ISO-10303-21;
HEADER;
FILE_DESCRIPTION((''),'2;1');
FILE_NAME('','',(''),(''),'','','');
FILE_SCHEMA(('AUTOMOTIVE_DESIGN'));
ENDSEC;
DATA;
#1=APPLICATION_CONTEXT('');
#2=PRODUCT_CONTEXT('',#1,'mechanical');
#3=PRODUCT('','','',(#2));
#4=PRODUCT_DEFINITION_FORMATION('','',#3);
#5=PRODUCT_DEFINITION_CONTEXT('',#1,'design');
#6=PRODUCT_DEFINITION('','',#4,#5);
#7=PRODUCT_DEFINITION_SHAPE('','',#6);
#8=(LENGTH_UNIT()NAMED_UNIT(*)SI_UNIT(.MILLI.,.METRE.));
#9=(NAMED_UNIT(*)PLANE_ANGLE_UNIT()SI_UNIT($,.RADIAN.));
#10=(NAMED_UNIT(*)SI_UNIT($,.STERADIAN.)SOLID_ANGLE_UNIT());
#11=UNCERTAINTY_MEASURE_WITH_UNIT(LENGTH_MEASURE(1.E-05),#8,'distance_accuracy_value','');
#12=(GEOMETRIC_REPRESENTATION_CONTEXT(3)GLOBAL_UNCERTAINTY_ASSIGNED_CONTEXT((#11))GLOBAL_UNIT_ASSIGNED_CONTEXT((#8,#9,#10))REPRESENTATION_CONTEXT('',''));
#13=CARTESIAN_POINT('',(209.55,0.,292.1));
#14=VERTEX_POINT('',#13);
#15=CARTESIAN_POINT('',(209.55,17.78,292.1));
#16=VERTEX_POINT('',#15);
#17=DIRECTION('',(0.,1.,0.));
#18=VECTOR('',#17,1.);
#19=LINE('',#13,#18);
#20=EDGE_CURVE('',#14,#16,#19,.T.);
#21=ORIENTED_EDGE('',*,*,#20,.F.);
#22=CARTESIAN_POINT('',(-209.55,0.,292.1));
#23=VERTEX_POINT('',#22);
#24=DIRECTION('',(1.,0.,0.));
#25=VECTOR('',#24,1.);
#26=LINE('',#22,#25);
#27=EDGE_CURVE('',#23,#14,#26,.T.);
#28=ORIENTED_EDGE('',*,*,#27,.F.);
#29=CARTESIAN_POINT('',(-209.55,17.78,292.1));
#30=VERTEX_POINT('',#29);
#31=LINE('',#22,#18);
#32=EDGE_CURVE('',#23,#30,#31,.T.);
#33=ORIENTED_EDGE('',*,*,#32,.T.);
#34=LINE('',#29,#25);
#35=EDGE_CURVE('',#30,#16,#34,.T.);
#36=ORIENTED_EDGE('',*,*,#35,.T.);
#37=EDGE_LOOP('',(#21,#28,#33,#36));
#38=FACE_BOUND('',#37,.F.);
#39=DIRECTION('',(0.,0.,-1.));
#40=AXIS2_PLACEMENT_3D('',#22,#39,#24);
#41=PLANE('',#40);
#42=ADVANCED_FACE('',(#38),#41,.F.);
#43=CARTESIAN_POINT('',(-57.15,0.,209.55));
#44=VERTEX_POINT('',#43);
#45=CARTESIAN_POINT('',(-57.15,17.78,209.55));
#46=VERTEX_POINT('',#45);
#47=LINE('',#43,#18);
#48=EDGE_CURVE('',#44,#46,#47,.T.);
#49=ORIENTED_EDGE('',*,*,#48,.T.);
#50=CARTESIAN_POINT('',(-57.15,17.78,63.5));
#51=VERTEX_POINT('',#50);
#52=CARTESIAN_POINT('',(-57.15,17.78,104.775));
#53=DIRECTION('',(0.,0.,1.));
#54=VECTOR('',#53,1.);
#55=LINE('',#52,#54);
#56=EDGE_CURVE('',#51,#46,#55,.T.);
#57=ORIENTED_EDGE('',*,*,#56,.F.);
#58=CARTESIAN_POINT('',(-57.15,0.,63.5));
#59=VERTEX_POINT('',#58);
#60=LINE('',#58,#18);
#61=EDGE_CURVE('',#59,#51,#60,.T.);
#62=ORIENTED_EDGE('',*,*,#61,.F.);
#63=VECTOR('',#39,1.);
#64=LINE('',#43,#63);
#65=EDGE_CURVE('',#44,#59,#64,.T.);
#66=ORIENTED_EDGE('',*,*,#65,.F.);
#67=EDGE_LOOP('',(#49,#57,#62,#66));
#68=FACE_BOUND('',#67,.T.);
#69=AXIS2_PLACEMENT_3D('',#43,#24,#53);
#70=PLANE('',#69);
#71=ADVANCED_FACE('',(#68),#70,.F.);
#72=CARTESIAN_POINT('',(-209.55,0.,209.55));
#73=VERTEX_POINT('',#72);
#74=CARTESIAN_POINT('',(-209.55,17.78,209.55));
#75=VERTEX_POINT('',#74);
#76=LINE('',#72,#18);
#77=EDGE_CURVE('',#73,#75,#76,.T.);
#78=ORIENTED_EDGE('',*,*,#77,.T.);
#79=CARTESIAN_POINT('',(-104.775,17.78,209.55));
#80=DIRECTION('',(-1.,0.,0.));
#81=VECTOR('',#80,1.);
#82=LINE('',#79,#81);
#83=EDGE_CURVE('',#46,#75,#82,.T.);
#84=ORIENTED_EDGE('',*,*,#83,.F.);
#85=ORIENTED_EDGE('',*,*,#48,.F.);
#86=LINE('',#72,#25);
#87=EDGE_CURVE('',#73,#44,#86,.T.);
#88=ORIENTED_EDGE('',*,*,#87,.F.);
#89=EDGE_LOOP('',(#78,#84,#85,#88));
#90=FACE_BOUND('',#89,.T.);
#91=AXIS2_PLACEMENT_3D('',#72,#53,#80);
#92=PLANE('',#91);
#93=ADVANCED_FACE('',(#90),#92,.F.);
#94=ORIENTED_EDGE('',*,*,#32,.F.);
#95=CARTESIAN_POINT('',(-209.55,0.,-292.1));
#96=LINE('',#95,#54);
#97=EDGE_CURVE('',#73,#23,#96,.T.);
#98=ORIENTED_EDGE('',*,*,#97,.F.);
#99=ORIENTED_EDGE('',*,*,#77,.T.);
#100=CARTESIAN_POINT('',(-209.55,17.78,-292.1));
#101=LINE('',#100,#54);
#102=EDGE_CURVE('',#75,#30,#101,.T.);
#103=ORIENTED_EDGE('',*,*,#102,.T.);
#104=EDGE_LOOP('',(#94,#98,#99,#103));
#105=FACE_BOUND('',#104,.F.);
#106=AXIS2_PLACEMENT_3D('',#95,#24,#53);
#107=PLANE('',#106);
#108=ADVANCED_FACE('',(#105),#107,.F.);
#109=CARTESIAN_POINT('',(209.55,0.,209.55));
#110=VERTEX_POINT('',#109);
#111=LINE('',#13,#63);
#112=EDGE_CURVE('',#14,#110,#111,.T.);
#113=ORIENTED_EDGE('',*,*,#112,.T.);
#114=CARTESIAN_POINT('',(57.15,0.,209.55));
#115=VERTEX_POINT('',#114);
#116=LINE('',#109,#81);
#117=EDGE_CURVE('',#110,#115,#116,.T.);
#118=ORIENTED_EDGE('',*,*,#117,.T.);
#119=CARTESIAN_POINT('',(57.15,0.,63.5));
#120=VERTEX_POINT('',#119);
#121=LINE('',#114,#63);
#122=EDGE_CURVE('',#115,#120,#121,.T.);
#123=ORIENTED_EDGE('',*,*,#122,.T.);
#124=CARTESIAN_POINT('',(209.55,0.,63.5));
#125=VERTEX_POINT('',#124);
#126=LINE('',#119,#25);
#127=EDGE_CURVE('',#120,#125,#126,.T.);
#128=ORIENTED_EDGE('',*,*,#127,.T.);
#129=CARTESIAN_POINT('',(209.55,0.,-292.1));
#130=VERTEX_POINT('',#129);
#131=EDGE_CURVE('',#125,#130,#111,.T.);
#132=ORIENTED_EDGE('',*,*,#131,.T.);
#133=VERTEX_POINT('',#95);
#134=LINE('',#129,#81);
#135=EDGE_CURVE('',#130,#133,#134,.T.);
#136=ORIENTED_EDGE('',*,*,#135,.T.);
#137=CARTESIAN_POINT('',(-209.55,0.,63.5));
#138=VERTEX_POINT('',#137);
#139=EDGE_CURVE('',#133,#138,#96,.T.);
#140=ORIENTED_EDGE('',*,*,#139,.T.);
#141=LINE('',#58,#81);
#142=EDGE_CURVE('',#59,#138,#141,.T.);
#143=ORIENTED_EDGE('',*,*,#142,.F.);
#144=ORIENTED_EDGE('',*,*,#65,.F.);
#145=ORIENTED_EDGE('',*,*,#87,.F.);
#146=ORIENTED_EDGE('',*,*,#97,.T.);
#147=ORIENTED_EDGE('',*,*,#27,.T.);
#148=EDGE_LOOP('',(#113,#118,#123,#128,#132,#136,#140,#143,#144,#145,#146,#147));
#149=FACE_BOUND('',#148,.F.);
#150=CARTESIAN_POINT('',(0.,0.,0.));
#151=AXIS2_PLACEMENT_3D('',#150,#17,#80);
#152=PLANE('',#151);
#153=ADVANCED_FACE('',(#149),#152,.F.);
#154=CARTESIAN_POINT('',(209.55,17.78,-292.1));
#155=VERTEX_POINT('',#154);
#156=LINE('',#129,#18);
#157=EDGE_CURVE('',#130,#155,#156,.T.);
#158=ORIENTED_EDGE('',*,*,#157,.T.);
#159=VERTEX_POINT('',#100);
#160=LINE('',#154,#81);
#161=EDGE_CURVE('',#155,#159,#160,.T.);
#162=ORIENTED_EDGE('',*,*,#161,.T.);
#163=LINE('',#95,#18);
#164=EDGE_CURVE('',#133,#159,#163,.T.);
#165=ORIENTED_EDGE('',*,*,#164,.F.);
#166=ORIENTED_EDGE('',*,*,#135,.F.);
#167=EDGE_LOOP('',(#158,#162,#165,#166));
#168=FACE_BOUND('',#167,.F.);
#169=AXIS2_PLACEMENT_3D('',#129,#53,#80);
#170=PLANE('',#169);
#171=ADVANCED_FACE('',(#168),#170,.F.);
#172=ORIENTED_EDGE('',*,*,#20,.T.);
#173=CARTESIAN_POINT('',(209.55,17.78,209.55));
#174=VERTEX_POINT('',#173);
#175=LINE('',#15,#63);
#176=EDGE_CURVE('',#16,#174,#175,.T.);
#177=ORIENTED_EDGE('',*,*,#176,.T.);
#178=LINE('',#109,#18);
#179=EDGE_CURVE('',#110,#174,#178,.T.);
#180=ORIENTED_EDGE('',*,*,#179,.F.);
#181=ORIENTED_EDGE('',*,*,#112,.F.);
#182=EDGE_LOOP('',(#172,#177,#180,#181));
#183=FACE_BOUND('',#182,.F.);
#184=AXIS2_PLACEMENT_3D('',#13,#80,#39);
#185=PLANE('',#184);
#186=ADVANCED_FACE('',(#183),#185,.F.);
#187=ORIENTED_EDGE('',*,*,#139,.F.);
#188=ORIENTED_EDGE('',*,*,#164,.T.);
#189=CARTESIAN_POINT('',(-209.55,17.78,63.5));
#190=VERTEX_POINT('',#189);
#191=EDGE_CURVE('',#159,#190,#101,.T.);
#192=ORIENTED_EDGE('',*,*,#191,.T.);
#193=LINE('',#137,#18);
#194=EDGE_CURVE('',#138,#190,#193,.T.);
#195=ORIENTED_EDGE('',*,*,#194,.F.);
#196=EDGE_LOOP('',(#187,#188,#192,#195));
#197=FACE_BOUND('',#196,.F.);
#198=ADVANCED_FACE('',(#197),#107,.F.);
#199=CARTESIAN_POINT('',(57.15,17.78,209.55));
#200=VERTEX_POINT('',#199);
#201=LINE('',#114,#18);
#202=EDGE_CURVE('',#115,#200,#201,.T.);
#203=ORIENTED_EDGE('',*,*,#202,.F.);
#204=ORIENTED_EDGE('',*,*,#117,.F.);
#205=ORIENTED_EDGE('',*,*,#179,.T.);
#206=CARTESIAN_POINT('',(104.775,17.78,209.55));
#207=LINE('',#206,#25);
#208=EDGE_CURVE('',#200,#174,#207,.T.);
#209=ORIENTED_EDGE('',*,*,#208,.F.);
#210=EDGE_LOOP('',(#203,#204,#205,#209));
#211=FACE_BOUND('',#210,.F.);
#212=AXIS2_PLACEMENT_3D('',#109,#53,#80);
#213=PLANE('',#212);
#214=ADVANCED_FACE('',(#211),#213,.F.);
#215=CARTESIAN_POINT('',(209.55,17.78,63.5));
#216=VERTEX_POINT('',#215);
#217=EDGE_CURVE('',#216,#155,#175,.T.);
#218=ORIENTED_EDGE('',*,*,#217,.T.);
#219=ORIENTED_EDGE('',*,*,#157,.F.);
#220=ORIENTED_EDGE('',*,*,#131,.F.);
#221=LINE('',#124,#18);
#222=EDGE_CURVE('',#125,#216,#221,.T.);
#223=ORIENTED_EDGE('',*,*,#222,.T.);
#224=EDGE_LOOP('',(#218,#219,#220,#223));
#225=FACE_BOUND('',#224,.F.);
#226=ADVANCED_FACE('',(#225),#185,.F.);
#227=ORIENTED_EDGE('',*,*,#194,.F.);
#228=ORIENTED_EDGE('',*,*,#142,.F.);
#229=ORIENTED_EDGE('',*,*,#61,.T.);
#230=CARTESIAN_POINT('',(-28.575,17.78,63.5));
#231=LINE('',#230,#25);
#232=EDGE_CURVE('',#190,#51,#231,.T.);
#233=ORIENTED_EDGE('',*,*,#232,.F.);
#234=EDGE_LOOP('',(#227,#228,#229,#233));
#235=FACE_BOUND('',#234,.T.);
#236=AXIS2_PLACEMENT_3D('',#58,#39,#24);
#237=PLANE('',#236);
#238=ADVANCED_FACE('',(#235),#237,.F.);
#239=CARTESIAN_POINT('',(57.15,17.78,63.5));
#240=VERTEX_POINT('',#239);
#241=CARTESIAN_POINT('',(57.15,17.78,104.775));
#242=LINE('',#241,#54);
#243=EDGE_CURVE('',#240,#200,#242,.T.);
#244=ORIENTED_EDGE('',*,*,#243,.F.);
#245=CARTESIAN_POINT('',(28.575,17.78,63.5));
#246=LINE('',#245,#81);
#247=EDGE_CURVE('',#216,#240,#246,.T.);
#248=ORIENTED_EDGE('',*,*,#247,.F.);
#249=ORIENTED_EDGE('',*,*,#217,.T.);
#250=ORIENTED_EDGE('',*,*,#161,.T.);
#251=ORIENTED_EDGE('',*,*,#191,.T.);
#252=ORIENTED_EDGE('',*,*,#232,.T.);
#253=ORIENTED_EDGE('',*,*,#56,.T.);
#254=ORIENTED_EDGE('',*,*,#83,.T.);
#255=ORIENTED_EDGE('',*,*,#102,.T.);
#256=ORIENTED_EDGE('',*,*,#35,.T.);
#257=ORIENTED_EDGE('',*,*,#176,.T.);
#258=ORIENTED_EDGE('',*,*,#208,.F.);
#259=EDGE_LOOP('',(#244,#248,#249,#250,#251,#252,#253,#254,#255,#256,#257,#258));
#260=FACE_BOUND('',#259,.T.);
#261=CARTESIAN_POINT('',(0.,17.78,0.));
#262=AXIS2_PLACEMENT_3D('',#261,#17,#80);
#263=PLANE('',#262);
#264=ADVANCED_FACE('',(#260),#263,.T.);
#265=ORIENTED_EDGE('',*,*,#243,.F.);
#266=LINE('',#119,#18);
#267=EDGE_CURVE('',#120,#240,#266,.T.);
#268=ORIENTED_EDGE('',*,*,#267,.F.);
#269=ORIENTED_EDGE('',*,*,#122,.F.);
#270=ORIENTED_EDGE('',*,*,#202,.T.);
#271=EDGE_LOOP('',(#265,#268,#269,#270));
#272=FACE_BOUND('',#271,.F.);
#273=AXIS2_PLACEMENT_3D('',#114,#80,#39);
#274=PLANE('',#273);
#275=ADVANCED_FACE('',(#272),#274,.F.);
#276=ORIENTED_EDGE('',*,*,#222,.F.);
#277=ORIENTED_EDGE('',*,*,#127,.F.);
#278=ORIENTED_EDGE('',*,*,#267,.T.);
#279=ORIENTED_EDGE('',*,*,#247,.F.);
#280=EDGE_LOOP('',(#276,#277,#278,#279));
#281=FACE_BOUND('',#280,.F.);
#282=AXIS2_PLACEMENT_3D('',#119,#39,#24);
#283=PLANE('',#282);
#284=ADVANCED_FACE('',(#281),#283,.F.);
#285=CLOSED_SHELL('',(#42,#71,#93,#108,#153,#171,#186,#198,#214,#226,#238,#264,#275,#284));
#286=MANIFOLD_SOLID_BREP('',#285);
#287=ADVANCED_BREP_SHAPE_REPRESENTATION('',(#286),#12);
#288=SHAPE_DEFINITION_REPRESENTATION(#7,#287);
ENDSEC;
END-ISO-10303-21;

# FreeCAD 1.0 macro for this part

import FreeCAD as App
import Part
import Sketcher

V = App.Vector
Q = App.Units.Quantity


def add_polygon(sketch, points):
    """Adds a closed chain of lines whose ends are joined by coincident constraints."""
    first, n = sketch.GeometryCount, len(points)
    for a, b in zip(points, points[1:] + points[:1]):
        sketch.addGeometry(Part.LineSegment(App.Vector(*a, 0), App.Vector(*b, 0)), False)
    for i in range(n):
        sketch.addConstraint(Sketcher.Constraint("Coincident", first + i, 2, first + (i + 1) % n, 1))

doc = App.newDocument("Part")
body = doc.addObject("PartDesign::Body", "Body")

# Sketch on XZ plane
sketch1 = body.newObject("Sketcher::SketchObject", "Sketch")
sketch1.AttachmentSupport = (doc.getObject("XZ_Plane"), [""])
sketch1.MapMode = "FlatFace"
add_polygon(sketch1, [(-209.55, 292.1), (209.55, 292.1), (209.55, -292.1), (-209.55, -292.1)])  # lines 0-3
sketch1.addConstraint(Sketcher.Constraint("Horizontal", 0))
sketch1.addConstraint(Sketcher.Constraint("Vertical", 1))
sketch1.addConstraint(Sketcher.Constraint("Horizontal", 2))
sketch1.addConstraint(Sketcher.Constraint("Vertical", 3))
sketch1.addConstraint(Sketcher.Constraint("Symmetric", 0, 2, 2, 2, -1, 1))
sketch1.addConstraint(Sketcher.Constraint("DistanceY", 1, 2, 1, 1, Q("23 in")))
sketch1.addConstraint(Sketcher.Constraint("DistanceX", 0, 1, 0, 2, Q("16.5 in")))
pad1 = body.newObject("PartDesign::Pad", "Pad")
pad1.Profile = sketch1
pad1.Length = Q("0.7 in")
pad1.Reversed = True

# Sketch on XZ plane
sketch2 = body.newObject("Sketcher::SketchObject", "Sketch001")
sketch2.AttachmentSupport = (doc.getObject("XZ_Plane"), [""])
sketch2.MapMode = "FlatFace"
add_polygon(sketch2, [(209.55, 63.5), (209.55, 209.55), (57.15, 209.55), (57.15, 63.5)])  # lines 0-3
sketch2.addConstraint(Sketcher.Constraint("Vertical", 0))
sketch2.addConstraint(Sketcher.Constraint("Horizontal", 1))
sketch2.addConstraint(Sketcher.Constraint("Vertical", 2))
sketch2.addConstraint(Sketcher.Constraint("Horizontal", 3))
sketch2.addConstraint(Sketcher.Constraint("DistanceX", 1, 2, 1, 1, Q("6 in")))
sketch2.addConstraint(Sketcher.Constraint("DistanceY", 0, 1, 0, 2, Q("5.75 in")))
sketch2.addConstraint(Sketcher.Constraint("DistanceY", -1, 1, 2, 2, Q("2.5 in")))
sketch2.addConstraint(Sketcher.Constraint("DistanceX", -1, 1, 0, 2, Q("8.25 in")))
pocket1 = body.newObject("PartDesign::Pocket", "Pocket")
pocket1.Profile = sketch2
pocket1.Type = "ThroughAll"
doc.recompute()

mirrored = body.newObject("PartDesign::Mirrored", "Mirrored")
mirrored.Originals = [pocket1]
mirrored.MirrorPlane = (doc.getObject("YZ_Plane"), [""])
body.Tip = mirrored

doc.recompute()
